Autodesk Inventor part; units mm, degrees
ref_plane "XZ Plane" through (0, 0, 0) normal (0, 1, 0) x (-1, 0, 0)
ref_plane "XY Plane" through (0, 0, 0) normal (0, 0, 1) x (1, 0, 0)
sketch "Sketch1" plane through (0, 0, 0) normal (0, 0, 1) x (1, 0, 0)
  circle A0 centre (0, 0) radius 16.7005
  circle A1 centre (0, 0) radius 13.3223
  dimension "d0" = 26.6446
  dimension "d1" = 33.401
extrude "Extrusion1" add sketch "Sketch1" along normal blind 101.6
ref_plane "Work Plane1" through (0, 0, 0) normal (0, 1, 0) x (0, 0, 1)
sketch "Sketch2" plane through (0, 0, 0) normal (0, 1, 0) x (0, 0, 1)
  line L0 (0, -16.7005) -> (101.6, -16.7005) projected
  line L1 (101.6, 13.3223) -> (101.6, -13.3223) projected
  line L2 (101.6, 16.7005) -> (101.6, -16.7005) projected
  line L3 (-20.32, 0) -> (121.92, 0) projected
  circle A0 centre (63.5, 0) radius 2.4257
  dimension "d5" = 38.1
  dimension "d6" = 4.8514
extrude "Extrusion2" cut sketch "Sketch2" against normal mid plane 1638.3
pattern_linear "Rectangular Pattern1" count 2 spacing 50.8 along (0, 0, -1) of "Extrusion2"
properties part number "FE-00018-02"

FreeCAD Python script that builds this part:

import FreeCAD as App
import Part
import Sketcher
from FreeCAD import Vector
Q = App.Units.Quantity

doc = App.newDocument("Part")
body = doc.addObject("PartDesign::Body", "Body")

sketch1 = body.newObject("Sketcher::SketchObject", "Sketch")
sketch1.AttachmentSupport = (doc.getObject("XY_Plane"), [""])
sketch1.MapMode = "FlatFace"
sketch1.addGeometry([
    Part.Circle(Vector(0, 0, 0), Vector(0, 0, 1), 17),
    Part.Circle(Vector(0, 0, 0), Vector(0, 0, 1), 13),
], False)
sketch1.addConstraint([
    Sketcher.Constraint("Coincident", 0, 3, -1, 1),
    Sketcher.Constraint("Coincident", 1, 3, -1, 1),
    Sketcher.Constraint("Diameter", 0, Q("1.315 in")),
    Sketcher.Constraint("Diameter", 1, Q("1.049 in")),
])
pad1 = body.newObject("PartDesign::Pad", "Pad")
pad1.Profile = sketch1
pad1.Length = Q("4 in")

sketch2 = body.newObject("Sketcher::SketchObject", "Sketch001")
sketch2.AttachmentSupport = (doc.getObject("XZ_Plane"), [""])
sketch2.MapMode = "FlatFace"
sketch2.addGeometry(Part.Circle(Vector(0, 63.5, 0), Vector(0, 0, 1), 2.4), False)
sketch2.addConstraint([
    Sketcher.Constraint("PointOnObject", 0, 3, -2),
    Sketcher.Constraint("Diameter", 0, Q("0.191 in")),
    Sketcher.Constraint("DistanceY", -1, 1, 0, 3, Q("2.5 in")),
])
pocket1 = body.newObject("PartDesign::Pocket", "Pocket")
pocket1.Profile = sketch2
pocket1.Length = Q("64.5 in")
pocket1.Midplane = True
doc.recompute()

linearpattern = body.newObject("PartDesign::LinearPattern", "LinearPattern")
linearpattern.Originals = [pocket1]
linearpattern.Direction = (doc.getObject("Z_Axis"), [""])
linearpattern.Mode = "offset"
linearpattern.Offset = Q("2 in")
linearpattern.Occurrences = 2
linearpattern.Reversed = True
body.Tip = linearpattern

doc.recompute()
